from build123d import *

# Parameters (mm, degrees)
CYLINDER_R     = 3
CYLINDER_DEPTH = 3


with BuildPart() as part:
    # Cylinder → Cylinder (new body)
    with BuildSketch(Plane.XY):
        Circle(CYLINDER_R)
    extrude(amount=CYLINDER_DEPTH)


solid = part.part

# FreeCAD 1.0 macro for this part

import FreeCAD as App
import Part
import Sketcher

doc = App.newDocument("Part")
body = doc.addObject("PartDesign::Body", "Body")

sketch1 = body.newObject("Sketcher::SketchObject", "Sketch")
sketch1.AttachmentSupport = (doc.getObject("XY_Plane"), [""])
sketch1.MapMode = "FlatFace"
sketch1.addGeometry(Part.Circle(App.Vector(0, 0, 0), App.Vector(0, 0, 1), 3), False)
sketch1.addConstraint(Sketcher.Constraint("Coincident", 0, 3, -1, 1))
sketch1.addConstraint(Sketcher.Constraint("Diameter", 0, 6.0))
pad1 = body.newObject("PartDesign::Pad", "Pad")
pad1.Profile = sketch1
pad1.Length = 3

doc.recompute()
